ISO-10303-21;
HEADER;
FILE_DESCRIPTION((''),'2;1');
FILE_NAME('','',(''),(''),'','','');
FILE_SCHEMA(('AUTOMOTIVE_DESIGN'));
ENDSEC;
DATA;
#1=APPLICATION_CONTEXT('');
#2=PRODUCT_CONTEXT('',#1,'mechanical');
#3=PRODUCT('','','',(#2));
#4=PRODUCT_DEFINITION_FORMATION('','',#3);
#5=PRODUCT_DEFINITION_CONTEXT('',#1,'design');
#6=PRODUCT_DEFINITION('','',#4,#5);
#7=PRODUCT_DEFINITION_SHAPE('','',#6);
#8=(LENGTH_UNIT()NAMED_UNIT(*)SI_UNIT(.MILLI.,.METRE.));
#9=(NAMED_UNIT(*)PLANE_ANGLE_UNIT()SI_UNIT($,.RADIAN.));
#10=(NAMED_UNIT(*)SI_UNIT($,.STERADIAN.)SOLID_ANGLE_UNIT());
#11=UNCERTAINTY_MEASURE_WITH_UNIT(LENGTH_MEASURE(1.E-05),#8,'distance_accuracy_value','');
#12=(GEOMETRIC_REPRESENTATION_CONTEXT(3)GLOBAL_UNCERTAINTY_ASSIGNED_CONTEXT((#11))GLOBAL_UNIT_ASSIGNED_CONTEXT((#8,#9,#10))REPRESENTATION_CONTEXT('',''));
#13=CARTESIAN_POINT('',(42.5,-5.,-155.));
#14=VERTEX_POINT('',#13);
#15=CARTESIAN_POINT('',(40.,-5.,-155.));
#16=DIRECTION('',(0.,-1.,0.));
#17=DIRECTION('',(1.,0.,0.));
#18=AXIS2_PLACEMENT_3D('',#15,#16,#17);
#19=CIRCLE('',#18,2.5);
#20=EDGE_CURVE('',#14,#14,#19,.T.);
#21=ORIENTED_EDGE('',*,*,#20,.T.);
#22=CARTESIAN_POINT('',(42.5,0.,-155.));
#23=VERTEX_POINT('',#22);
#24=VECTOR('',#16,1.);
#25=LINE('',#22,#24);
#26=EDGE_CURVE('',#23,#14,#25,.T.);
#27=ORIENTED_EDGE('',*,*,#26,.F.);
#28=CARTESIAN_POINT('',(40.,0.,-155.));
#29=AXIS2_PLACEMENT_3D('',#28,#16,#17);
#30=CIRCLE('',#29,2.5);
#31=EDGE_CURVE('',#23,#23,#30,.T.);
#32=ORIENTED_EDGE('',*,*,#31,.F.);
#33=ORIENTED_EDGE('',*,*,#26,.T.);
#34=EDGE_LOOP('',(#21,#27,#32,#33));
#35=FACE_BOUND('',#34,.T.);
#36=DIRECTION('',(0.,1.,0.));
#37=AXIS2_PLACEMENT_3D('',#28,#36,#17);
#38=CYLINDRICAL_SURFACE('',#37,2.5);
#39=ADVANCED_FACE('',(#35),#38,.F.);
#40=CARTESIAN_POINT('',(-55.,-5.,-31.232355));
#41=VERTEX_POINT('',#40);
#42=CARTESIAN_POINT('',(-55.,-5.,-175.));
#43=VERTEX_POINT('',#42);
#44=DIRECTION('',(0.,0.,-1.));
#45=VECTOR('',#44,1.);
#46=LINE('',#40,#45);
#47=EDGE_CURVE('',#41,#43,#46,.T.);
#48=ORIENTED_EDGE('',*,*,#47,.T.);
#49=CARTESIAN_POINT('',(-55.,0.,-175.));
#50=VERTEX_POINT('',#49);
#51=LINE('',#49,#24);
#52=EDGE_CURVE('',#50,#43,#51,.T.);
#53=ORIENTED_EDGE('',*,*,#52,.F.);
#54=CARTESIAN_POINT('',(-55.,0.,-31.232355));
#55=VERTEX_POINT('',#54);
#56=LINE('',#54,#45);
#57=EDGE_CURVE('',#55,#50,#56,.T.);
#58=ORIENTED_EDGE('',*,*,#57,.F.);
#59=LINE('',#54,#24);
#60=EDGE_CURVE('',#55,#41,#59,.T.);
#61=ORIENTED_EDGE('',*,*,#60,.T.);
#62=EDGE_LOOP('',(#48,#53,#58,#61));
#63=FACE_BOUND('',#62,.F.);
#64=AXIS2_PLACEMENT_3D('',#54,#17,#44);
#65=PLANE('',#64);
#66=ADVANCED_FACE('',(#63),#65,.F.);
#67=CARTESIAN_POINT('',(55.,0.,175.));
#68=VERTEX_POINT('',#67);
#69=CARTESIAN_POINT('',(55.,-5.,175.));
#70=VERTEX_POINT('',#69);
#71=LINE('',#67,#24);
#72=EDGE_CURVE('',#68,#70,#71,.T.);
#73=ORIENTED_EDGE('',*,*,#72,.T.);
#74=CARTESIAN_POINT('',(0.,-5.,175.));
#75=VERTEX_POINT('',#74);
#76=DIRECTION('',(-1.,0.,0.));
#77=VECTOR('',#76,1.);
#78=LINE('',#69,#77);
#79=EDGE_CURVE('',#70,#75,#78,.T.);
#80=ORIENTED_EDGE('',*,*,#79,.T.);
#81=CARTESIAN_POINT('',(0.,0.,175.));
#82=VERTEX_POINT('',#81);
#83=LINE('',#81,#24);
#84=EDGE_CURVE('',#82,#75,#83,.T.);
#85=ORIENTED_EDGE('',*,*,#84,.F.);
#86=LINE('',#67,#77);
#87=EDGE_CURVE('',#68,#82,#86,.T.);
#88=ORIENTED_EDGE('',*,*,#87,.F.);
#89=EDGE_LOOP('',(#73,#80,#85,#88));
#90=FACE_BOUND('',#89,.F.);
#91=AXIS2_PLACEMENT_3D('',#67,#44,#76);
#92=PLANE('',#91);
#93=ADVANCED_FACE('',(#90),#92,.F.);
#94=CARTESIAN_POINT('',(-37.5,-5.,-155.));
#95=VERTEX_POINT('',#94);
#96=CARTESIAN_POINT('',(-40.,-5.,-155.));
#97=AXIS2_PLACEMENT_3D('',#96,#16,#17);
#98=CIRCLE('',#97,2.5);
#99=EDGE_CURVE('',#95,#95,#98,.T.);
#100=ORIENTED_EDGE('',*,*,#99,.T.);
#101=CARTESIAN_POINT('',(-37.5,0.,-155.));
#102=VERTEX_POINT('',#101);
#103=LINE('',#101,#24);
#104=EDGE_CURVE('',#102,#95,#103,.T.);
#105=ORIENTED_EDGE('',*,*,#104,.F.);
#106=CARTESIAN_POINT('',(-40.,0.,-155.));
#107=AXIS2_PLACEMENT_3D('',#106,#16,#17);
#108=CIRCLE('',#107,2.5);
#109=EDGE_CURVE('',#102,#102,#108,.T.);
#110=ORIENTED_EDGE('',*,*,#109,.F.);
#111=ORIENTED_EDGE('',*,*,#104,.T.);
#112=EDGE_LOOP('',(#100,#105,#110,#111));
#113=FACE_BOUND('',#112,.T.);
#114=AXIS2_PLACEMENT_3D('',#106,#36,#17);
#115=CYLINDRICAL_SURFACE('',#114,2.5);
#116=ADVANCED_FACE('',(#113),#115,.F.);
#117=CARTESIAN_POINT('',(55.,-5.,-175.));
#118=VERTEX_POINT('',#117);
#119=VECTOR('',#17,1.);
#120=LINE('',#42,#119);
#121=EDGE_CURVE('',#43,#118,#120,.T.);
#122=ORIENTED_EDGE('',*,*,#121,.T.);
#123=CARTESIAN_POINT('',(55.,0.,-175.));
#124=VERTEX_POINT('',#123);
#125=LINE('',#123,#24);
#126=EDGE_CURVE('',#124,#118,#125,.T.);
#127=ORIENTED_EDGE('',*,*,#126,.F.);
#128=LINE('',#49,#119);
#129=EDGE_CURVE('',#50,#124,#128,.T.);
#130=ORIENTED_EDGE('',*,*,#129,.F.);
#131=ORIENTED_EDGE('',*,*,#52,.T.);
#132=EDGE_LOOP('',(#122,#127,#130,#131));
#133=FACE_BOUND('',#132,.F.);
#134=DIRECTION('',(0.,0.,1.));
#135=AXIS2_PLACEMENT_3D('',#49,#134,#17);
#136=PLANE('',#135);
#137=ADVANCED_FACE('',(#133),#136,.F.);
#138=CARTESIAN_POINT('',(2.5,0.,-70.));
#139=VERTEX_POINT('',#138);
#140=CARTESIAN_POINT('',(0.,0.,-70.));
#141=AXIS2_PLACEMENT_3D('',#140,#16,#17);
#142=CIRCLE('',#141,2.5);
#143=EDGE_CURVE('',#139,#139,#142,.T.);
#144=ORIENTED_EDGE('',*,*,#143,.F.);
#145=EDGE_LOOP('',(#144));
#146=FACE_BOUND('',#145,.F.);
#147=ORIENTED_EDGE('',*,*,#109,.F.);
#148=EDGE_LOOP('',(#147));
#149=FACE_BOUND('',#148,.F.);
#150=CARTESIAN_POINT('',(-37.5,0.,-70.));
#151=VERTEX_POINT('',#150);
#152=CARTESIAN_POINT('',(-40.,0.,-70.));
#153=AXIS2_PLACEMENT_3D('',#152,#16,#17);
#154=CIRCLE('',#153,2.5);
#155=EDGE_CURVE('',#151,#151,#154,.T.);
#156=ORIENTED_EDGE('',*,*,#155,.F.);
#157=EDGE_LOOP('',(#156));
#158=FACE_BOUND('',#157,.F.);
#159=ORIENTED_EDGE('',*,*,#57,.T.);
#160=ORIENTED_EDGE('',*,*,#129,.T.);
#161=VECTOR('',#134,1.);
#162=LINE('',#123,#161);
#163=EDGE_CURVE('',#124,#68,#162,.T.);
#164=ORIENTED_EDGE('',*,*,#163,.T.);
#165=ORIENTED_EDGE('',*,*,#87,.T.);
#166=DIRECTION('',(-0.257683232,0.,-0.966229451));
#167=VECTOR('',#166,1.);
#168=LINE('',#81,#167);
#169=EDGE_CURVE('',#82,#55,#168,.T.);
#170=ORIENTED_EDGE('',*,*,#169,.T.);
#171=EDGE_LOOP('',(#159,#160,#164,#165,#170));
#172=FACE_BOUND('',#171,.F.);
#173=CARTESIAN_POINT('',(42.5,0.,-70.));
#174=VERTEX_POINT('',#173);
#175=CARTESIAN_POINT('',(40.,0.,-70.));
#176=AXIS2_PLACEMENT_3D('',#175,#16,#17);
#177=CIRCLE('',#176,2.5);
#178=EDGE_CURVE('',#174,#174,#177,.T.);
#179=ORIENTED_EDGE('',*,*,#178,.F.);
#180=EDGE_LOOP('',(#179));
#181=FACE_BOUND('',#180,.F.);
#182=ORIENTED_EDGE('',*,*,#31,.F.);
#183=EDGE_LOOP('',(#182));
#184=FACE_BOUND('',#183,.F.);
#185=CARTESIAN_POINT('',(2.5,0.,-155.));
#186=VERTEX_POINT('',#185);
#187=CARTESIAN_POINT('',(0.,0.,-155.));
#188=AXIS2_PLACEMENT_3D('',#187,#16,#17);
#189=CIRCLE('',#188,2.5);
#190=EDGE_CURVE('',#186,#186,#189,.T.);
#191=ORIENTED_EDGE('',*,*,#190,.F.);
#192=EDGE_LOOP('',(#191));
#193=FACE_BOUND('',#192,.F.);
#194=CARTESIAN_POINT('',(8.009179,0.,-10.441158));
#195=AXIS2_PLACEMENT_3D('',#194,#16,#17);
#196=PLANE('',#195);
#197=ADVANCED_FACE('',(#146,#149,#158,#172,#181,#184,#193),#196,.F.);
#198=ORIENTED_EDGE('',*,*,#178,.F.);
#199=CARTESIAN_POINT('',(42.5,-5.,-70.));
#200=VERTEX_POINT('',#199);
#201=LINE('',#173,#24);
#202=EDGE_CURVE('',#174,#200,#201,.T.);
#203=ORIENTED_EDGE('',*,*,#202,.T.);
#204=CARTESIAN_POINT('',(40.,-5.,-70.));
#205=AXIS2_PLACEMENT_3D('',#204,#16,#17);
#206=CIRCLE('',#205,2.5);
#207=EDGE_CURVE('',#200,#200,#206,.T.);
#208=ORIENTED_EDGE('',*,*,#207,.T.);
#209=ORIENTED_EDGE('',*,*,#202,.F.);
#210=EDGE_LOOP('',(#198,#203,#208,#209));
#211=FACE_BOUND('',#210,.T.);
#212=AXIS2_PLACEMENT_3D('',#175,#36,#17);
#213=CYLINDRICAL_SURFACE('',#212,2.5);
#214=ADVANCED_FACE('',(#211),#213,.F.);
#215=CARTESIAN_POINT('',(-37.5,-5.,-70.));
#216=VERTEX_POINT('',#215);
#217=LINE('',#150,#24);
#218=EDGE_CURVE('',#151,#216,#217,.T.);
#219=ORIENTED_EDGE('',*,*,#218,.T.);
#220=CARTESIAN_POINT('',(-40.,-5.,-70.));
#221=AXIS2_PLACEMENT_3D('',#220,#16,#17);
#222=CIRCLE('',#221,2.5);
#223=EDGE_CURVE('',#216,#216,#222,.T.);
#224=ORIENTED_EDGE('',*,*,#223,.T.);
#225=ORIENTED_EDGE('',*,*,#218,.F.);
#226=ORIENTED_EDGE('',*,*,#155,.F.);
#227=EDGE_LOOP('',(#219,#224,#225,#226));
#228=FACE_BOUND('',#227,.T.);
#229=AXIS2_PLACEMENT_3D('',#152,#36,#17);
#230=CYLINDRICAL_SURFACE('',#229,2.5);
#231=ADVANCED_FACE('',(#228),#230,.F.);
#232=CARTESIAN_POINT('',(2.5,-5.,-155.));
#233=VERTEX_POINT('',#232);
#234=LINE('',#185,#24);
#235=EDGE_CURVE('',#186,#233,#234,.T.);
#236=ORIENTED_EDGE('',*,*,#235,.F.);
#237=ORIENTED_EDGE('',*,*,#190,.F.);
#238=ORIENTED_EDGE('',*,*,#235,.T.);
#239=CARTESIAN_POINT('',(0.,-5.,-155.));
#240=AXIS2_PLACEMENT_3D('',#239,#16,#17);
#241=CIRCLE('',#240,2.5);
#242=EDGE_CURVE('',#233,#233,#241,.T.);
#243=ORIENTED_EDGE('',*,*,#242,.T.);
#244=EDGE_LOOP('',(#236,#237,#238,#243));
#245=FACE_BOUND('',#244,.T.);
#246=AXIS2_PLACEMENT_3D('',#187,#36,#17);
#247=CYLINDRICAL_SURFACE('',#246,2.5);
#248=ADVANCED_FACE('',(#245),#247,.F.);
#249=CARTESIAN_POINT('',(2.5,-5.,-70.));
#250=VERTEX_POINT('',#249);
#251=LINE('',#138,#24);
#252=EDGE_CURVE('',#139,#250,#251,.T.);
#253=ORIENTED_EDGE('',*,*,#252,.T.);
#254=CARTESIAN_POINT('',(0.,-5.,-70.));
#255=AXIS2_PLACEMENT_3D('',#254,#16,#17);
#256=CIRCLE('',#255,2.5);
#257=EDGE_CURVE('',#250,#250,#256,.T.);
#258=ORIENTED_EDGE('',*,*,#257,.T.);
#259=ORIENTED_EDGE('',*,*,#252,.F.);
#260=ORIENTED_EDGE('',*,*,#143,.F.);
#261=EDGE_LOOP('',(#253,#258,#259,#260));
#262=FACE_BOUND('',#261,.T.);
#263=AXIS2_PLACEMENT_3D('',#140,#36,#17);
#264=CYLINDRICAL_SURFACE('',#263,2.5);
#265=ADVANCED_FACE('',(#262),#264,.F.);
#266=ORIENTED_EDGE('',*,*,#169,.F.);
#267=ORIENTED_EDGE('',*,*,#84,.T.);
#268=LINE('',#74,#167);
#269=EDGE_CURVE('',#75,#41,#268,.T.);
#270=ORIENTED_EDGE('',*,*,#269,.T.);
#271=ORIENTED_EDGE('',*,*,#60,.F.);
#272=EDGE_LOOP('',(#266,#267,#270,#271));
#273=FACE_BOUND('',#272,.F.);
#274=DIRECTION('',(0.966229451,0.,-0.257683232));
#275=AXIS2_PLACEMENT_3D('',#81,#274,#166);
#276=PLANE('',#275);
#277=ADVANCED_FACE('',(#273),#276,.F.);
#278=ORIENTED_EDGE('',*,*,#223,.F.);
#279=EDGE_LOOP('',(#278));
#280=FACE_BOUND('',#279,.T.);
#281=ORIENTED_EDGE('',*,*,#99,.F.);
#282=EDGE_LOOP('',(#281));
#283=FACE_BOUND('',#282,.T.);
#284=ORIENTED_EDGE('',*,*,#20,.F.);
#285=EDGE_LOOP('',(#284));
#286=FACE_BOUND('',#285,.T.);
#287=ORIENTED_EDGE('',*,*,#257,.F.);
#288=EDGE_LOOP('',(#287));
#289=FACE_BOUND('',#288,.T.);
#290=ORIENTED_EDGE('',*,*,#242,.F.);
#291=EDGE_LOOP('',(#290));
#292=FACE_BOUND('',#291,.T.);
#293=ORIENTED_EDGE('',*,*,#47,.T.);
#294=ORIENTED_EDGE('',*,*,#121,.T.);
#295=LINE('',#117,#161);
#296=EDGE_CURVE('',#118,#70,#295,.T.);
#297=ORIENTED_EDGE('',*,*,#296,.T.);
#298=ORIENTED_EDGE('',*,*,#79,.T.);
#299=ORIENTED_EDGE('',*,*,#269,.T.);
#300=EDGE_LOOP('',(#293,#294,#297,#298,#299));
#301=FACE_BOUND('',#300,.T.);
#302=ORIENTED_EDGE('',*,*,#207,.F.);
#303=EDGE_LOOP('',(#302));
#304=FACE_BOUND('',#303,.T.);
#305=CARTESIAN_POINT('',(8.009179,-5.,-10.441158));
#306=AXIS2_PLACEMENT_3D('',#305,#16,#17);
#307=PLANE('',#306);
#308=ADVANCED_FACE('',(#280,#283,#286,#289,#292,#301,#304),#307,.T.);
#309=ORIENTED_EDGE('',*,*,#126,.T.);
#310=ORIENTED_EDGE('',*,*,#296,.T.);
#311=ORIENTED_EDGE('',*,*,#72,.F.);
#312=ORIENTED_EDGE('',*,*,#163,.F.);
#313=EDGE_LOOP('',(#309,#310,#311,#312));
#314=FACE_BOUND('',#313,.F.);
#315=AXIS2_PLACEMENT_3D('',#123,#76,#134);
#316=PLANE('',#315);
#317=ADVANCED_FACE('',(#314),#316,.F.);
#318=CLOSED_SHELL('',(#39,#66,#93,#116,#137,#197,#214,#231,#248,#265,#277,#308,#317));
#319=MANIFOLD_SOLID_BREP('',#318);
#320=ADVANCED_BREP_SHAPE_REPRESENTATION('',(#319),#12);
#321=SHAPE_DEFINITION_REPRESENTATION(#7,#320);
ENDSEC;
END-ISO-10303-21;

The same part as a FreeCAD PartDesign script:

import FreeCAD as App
import Part
import Sketcher

V = App.Vector


def add_polygon(sketch, points):
    """Adds a closed chain of lines whose ends are joined by coincident constraints."""
    first, n = sketch.GeometryCount, len(points)
    for a, b in zip(points, points[1:] + points[:1]):
        sketch.addGeometry(Part.LineSegment(App.Vector(*a, 0), App.Vector(*b, 0)), False)
    for i in range(n):
        sketch.addConstraint(Sketcher.Constraint("Coincident", first + i, 2, first + (i + 1) % n, 1))

doc = App.newDocument("Part")
body = doc.addObject("PartDesign::Body", "Body")

# Sketch on XZ plane
sketch1 = body.newObject("Sketcher::SketchObject", "Sketch")
sketch1.AttachmentSupport = (doc.getObject("XZ_Plane"), [""])
sketch1.MapMode = "FlatFace"
add_polygon(sketch1, [(-55, -175), (55, -175), (55, 175), (0, 175), (-55, -31.2)])  # lines 0-4
sketch1.addGeometry(Part.Circle(V(-40, -155, 0), V(0, 0, 1), 2.5), False)  # 5
sketch1.addGeometry(Part.Circle(V(0, -155, 0), V(0, 0, 1), 2.5), False)  # 6
sketch1.addGeometry(Part.Circle(V(40, -155, 0), V(0, 0, 1), 2.5), False)  # 7
sketch1.addGeometry(Part.Circle(V(-40, -70, 0), V(0, 0, 1), 2.5), False)  # 8
sketch1.addGeometry(Part.Circle(V(0, -70, 0), V(0, 0, 1), 2.5), False)  # 9
sketch1.addGeometry(Part.Circle(V(40, -70, 0), V(0, 0, 1), 2.5), False)  # 10
sketch1.addConstraint([
    Sketcher.Constraint("Horizontal", 0),
    Sketcher.Constraint("Vertical", 1),
    Sketcher.Constraint("Horizontal", 2),
    Sketcher.Constraint("Vertical", 4),
    Sketcher.Constraint("Equal", 5, 6),
    Sketcher.Constraint("Equal", 6, 7),
    Sketcher.Constraint("Equal", 7, 8),
    Sketcher.Constraint("Equal", 8, 9),
    Sketcher.Constraint("Equal", 9, 10),
    Sketcher.Constraint("Symmetric", 1, 2, 4, 2, -1, 1),
    Sketcher.Constraint("Symmetric", 5, 3, 7, 3, -2),
    Sketcher.Constraint("Symmetric", 8, 3, 10, 3, -2),
    Sketcher.Constraint("PointOnObject", 6, 3, -2),
    Sketcher.Constraint("PointOnObject", 9, 3, -2),
    Sketcher.Constraint("PointOnObject", 2, 2, -2),
    Sketcher.Constraint("Horizontal", 5, 3, 6, 3),
    Sketcher.Constraint("Horizontal", 8, 3, 9, 3),
    Sketcher.Constraint("Vertical", 5, 3, 8, 3),
    Sketcher.Constraint("Diameter", 5, 5.0),
    Sketcher.Constraint("DistanceX", 0, 1, 0, 2, 110.0),
    Sketcher.Constraint("DistanceY", 1, 1, 1, 2, 350.0),
    Sketcher.Constraint("DistanceX", 5, 3, -1, 1, 40.0),
    Sketcher.Constraint("DistanceY", 5, 3, -1, 1, 155.0),
    Sketcher.Constraint("DistanceY", 8, 3, -1, 1, 70.0),
    Sketcher.Constraint("DistanceY", 4, 2, 4, 1, 143.767645),
])
pad1 = body.newObject("PartDesign::Pad", "Pad")
pad1.Profile = sketch1
pad1.Length = 5

doc.recompute()
